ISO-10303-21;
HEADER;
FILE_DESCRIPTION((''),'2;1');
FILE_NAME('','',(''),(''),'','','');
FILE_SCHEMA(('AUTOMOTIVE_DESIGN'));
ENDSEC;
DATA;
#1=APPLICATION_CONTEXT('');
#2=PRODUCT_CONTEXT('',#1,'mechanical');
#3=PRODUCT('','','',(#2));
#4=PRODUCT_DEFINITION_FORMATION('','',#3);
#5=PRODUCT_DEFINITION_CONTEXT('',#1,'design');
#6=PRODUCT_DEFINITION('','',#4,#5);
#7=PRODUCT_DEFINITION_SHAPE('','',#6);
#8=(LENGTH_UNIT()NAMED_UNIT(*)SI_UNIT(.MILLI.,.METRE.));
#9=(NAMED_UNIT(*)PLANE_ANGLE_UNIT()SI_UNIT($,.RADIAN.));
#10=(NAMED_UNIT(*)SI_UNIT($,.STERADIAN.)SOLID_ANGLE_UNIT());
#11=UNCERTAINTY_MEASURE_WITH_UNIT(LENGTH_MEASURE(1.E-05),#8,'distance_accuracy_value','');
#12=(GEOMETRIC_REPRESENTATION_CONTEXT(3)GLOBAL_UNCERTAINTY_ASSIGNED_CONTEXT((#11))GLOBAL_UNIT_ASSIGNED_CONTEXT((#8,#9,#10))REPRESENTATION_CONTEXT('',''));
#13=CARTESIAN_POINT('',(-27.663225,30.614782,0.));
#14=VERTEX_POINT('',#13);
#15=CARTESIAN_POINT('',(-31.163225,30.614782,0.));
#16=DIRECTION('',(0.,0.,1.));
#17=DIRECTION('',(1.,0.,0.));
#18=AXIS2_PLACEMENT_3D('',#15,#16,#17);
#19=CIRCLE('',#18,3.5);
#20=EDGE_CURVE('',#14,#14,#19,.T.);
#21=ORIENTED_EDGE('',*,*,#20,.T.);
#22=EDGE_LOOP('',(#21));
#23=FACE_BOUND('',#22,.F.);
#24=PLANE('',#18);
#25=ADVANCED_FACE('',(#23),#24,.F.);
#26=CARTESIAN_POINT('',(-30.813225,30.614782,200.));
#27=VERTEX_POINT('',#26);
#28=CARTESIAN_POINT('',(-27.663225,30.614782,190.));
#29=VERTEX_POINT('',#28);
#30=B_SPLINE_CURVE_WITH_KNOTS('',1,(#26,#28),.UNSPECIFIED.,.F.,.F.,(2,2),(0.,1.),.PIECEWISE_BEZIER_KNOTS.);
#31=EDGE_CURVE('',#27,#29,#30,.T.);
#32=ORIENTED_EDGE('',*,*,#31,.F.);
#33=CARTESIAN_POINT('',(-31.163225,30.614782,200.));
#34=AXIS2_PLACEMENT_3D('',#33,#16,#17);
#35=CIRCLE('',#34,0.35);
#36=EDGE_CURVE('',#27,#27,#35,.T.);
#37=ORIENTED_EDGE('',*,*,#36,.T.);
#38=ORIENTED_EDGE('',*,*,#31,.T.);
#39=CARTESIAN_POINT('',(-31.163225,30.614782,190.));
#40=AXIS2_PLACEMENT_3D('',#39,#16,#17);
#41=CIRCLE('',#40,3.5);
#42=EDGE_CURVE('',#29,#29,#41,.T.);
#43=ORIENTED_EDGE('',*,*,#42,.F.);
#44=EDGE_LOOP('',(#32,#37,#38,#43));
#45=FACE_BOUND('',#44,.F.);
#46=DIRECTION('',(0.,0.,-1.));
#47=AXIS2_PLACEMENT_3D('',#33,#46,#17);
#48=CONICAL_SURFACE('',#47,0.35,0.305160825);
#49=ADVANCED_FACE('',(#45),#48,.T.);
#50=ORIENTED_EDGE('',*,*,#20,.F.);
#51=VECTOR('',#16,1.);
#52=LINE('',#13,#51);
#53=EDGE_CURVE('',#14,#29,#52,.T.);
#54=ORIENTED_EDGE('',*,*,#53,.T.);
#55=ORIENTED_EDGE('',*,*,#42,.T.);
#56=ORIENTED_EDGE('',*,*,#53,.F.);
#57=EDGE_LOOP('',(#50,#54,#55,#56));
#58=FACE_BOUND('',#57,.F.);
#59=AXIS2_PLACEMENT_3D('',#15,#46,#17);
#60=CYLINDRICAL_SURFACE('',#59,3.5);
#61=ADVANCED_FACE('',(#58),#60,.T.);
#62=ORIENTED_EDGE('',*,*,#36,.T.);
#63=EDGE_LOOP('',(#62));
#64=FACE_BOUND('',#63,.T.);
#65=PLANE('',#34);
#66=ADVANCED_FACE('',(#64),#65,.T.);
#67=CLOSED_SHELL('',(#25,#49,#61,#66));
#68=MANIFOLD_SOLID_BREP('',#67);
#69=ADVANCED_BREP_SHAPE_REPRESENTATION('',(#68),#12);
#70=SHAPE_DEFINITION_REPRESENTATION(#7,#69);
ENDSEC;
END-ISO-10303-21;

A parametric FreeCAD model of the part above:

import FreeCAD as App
import Part
import Sketcher

doc = App.newDocument("Part")
params = doc.addObject("Spreadsheet::Sheet", "Params")
for row, (alias, value) in enumerate([
    ("sketch1_diameter", "7 mm"),
    ("pad1_length", "190 mm"),
    ("sketch2_diameter", "0.7 mm"),
    ("sketch3_diameter", "7 mm"),
], start=1):
    params.set(f"A{row}", alias)
    params.set(f"B{row}", "=" + value)
    params.setAlias(f"B{row}", alias)

body = doc.addObject("PartDesign::Body", "Body")

# Sketch on XY plane
sketch1 = body.newObject("Sketcher::SketchObject", "Sketch")
sketch1.AttachmentSupport = (doc.getObject("XY_Plane"), [""])
sketch1.MapMode = "FlatFace"
sketch1.addGeometry(Part.Circle(App.Vector(-31.2, 30.6, 0), App.Vector(0, 0, 1), 3.5), False)
sketch1.addConstraint(Sketcher.Constraint("Diameter", 0, 7.0))
sketch1.addConstraint(Sketcher.Constraint("DistanceX", 0, 3, -1, 1, 31.163225))
sketch1.addConstraint(Sketcher.Constraint("DistanceY", -1, 1, 0, 3, 30.614782))
sketch1.setExpression("Constraints[0]", "Params.sketch1_diameter")
pad1 = body.newObject("PartDesign::Pad", "Pad")
pad1.Profile = sketch1
pad1.setExpression("Length", "Params.pad1_length")

# Sketch on XY plane
sketch2 = body.newObject("Sketcher::SketchObject", "Sketch001")
sketch2.AttachmentSupport = (doc.getObject("XY_Plane"), [""])
sketch2.MapMode = "FlatFace"
sketch2.AttachmentOffset = App.Placement(App.Vector(0, 0, 200), App.Rotation())
sketch2.addGeometry(Part.Circle(App.Vector(-31.16, 30.61, 0), App.Vector(0, 0, 1), 0.35), False)
sketch2.addConstraint(Sketcher.Constraint("Diameter", 0, 0.7))
sketch2.addConstraint(Sketcher.Constraint("DistanceX", 0, 3, -1, 1, 31.163225))
sketch2.addConstraint(Sketcher.Constraint("DistanceY", -1, 1, 0, 3, 30.614782))
sketch2.setExpression("Constraints[0]", "Params.sketch2_diameter")

# Sketch on XY plane
sketch3 = body.newObject("Sketcher::SketchObject", "Sketch002")
sketch3.AttachmentSupport = (doc.getObject("XY_Plane"), [""])
sketch3.MapMode = "FlatFace"
sketch3.AttachmentOffset = App.Placement(App.Vector(0, 0, 190), App.Rotation())
sketch3.addGeometry(Part.Circle(App.Vector(-31.2, 30.6, 0), App.Vector(0, 0, 1), 3.5), False)
sketch3.addConstraint(Sketcher.Constraint("Diameter", 0, 7.0))
sketch3.addConstraint(Sketcher.Constraint("DistanceX", 0, 3, -1, 1, 31.163225))
sketch3.addConstraint(Sketcher.Constraint("DistanceY", -1, 1, 0, 3, 30.614782))
sketch3.setExpression("Constraints[0]", "Params.sketch3_diameter")

additiveloft = body.newObject("PartDesign::AdditiveLoft", "AdditiveLoft")
additiveloft.Profile = sketch2
additiveloft.Sections = [sketch3]

doc.recompute()
